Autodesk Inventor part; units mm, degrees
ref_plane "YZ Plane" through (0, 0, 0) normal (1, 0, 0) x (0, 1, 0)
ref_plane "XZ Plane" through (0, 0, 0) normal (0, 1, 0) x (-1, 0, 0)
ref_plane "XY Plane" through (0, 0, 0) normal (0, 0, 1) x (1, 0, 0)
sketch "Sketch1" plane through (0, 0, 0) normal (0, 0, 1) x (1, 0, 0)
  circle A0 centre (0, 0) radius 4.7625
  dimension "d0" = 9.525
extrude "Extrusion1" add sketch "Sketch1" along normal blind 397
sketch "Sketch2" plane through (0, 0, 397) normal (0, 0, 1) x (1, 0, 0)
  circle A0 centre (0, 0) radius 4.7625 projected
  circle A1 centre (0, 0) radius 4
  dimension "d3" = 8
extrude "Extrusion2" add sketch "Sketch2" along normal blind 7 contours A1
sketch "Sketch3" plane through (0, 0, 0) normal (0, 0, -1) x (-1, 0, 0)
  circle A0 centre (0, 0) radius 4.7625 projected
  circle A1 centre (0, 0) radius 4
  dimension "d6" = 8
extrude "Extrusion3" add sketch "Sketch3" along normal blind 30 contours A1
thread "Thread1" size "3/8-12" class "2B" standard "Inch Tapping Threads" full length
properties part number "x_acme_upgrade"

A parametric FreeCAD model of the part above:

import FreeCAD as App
import Part
import Sketcher

V = App.Vector

doc = App.newDocument("Part")
body = doc.addObject("PartDesign::Body", "Body")

# Sketch on XY plane
sketch1 = body.newObject("Sketcher::SketchObject", "Sketch")
sketch1.AttachmentSupport = (doc.getObject("XY_Plane"), [""])
sketch1.MapMode = "FlatFace"
sketch1.addGeometry(Part.Circle(V(0, 0, 0), V(0, 0, 1), 4.7625), False)
sketch1.addConstraint(Sketcher.Constraint("Coincident", 0, 3, -1, 1))
sketch1.addConstraint(Sketcher.Constraint("Diameter", 0, 9.525))
pad1 = body.newObject("PartDesign::Pad", "Pad")
pad1.Profile = sketch1
pad1.Length = 397

# Sketch on XY plane
sketch2 = body.newObject("Sketcher::SketchObject", "Sketch001")
sketch2.AttachmentSupport = (doc.getObject("XY_Plane"), [""])
sketch2.MapMode = "FlatFace"
sketch2.AttachmentOffset = App.Placement(V(0, 0, 397), App.Rotation())
sketch2.addGeometry(Part.Circle(V(0, 0, 0), V(0, 0, 1), 4), False)
sketch2.addConstraint(Sketcher.Constraint("Coincident", 0, 3, -1, 1))
sketch2.addConstraint(Sketcher.Constraint("Diameter", 0, 8.0))
pad2 = body.newObject("PartDesign::Pad", "Pad001")
pad2.Profile = sketch2
pad2.Length = 7

# Sketch on XY plane
sketch3 = body.newObject("Sketcher::SketchObject", "Sketch002")
sketch3.AttachmentSupport = (doc.getObject("XY_Plane"), [""])
sketch3.MapMode = "FlatFace"
sketch3.addGeometry(Part.Circle(V(0, 0, 0), V(0, 0, 1), 4), False)
sketch3.addConstraint(Sketcher.Constraint("Coincident", 0, 3, -1, 1))
sketch3.addConstraint(Sketcher.Constraint("Diameter", 0, 8.0))
pad3 = body.newObject("PartDesign::Pad", "Pad002")
pad3.Profile = sketch3
pad3.Length = 30
pad3.Reversed = True

doc.recompute()
